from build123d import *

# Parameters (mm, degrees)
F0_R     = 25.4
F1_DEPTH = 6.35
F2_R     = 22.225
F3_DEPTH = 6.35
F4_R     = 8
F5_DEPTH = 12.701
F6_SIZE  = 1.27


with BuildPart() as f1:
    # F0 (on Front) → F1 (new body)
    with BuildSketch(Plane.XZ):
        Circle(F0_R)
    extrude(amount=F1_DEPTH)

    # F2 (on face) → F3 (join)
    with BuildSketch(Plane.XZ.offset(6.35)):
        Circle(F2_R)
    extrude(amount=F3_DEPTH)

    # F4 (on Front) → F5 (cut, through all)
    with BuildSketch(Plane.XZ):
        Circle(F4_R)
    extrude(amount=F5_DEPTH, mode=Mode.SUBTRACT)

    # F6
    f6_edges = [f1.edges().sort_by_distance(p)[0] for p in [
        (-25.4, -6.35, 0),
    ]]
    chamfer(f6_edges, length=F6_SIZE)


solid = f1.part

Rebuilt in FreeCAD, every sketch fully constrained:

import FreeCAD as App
import Part
import Sketcher
Q = App.Units.Quantity


def edges_at(feature, points):
    """Names of the edges that pass closest to the given points."""
    edges = feature.Shape.Edges
    near = lambda p: min(range(len(edges)), key=lambda i: edges[i].distToShape(Part.Vertex(*p))[0])
    return sorted({f"Edge{near(p) + 1}" for p in points})

doc = App.newDocument("Part")
body = doc.addObject("PartDesign::Body", "Body")

sketch1 = doc.addObject("Sketcher::SketchObject", "Sketch")
body.addObject(sketch1)
sketch1.AttachmentSupport = (doc.XZ_Plane, [""])
sketch1.MapMode = "FlatFace"
sketch1.addGeometry(Part.Circle(App.Vector(0, 0, 0), App.Vector(0, 0, 1), 25.4), False)
sketch1.addConstraint(Sketcher.Constraint("Coincident", 0, 3, -1, 1))
sketch1.addConstraint(Sketcher.Constraint("Diameter", 0, Q("2 in")))
pad1 = doc.addObject("PartDesign::Pad", "Pad")
body.addObject(pad1)
pad1.Profile = sketch1
pad1.Length = Q("0.25 in")

sketch2 = doc.addObject("Sketcher::SketchObject", "Sketch001")
body.addObject(sketch2)
sketch2.AttachmentSupport = (doc.XZ_Plane, [""])
sketch2.MapMode = "FlatFace"
sketch2.AttachmentOffset = App.Placement(App.Vector(0, 0, 0.25 * 25.4), App.Rotation())
sketch2.addGeometry(Part.Circle(App.Vector(0, 0, 0), App.Vector(0, 0, 1), 22.225), False)
sketch2.addConstraint(Sketcher.Constraint("Coincident", 0, 3, -1, 1))
sketch2.addConstraint(Sketcher.Constraint("Diameter", 0, Q("1.75 in")))
pad2 = doc.addObject("PartDesign::Pad", "Pad001")
body.addObject(pad2)
pad2.Profile = sketch2
pad2.Length = Q("0.25 in")

sketch3 = doc.addObject("Sketcher::SketchObject", "Sketch002")
body.addObject(sketch3)
sketch3.AttachmentSupport = (doc.XZ_Plane, [""])
sketch3.MapMode = "FlatFace"
sketch3.addGeometry(Part.Circle(App.Vector(0, 0, 0), App.Vector(0, 0, 1), 8), False)
sketch3.addConstraint(Sketcher.Constraint("Coincident", 0, 3, -1, 1))
sketch3.addConstraint(Sketcher.Constraint("Diameter", 0, Q("16 mm")))
pocket1 = doc.addObject("PartDesign::Pocket", "Pocket")
body.addObject(pocket1)
pocket1.Profile = sketch3
pocket1.Type = "ThroughAll"
pocket1.Reversed = True
doc.recompute()

chamfer = doc.addObject("PartDesign::Chamfer", "Chamfer")
body.addObject(chamfer)
chamfer.Base = (pocket1, edges_at(pocket1, [(-25.4, -6.35, 0)]))
chamfer.Size = Q("0.05 in")

doc.recompute()
